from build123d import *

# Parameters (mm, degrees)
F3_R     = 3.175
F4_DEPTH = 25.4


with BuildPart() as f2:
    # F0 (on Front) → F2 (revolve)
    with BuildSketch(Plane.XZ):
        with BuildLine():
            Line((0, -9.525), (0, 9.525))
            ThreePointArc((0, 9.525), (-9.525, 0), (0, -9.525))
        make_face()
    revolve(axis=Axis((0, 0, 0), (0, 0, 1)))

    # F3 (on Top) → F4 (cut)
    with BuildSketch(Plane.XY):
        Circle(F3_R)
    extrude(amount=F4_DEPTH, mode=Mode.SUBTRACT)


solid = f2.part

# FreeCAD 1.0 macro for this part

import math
import FreeCAD as App
import Part
import Sketcher
Q = App.Units.Quantity

doc = App.newDocument("Part")
body = doc.addObject("PartDesign::Body", "Body")

# Sketch on XZ plane
sketch1 = body.newObject("Sketcher::SketchObject", "Sketch")
sketch1.AttachmentSupport = (doc.getObject("XZ_Plane"), [""])
sketch1.MapMode = "FlatFace"
sketch1.addGeometry([
    Part.LineSegment(App.Vector(0, -9.525, 0), App.Vector(0, 9.525, 0)),
    Part.ArcOfCircle(Part.Circle(App.Vector(0, 0, 0), App.Vector(0, 0, 1), 9.525), math.radians(90), math.radians(270)),
], False)
sketch1.addConstraint([
    Sketcher.Constraint("Coincident", 0, 1, 1, 2),
    Sketcher.Constraint("Coincident", 1, 1, 0, 2),
    Sketcher.Constraint("Vertical", 0),
    Sketcher.Constraint("Coincident", 1, 3, -1, 1),
    Sketcher.Constraint("PointOnObject", 0, 1, -2),
    Sketcher.Constraint("Radius", 1, Q("0.375 in")),
])
revolution = body.newObject("PartDesign::Revolution", "Revolution")
revolution.Profile = sketch1
revolution.ReferenceAxis = (sketch1, ["V_Axis"])
revolution.Angle = 360

# Sketch on XY plane
sketch2 = body.newObject("Sketcher::SketchObject", "Sketch001")
sketch2.AttachmentSupport = (doc.getObject("XY_Plane"), [""])
sketch2.MapMode = "FlatFace"
sketch2.addGeometry(Part.Circle(App.Vector(0, 0, 0), App.Vector(0, 0, 1), 3.175), False)
sketch2.addConstraint([
    Sketcher.Constraint("Coincident", 0, 3, -1, 1),
    Sketcher.Constraint("Diameter", 0, Q("0.25 in")),
])
pocket1 = body.newObject("PartDesign::Pocket", "Pocket")
pocket1.Profile = sketch2
pocket1.Length = Q("1 in")
pocket1.Reversed = True

doc.recompute()
